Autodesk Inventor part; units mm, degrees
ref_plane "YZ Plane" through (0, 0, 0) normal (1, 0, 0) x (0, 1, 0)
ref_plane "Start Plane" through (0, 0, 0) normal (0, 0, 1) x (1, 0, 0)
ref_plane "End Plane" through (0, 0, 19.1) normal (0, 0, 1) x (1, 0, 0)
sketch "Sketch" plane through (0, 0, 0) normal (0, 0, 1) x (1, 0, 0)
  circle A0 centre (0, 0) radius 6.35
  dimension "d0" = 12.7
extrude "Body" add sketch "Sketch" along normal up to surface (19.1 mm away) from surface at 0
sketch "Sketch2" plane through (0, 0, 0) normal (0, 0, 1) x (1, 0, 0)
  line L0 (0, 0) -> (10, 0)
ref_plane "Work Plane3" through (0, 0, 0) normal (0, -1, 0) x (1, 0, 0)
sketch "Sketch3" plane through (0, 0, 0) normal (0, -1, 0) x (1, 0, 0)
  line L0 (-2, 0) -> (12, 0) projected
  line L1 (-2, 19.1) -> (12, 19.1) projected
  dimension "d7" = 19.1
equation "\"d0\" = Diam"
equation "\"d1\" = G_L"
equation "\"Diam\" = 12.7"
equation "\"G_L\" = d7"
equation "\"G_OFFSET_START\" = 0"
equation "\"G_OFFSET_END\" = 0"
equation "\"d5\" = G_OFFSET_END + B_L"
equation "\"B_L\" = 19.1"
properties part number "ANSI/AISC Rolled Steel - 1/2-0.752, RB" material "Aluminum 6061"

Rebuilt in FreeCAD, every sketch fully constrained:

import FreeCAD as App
import Part
import Sketcher
Q = App.Units.Quantity

doc = App.newDocument("Part")
body = doc.addObject("PartDesign::Body", "Body")

sketch1 = body.newObject("Sketcher::SketchObject", "Sketch")
sketch1.AttachmentSupport = (doc.getObject("XY_Plane"), [""])
sketch1.MapMode = "FlatFace"
sketch1.addGeometry(Part.Circle(App.Vector(0, 0, 0), App.Vector(0, 0, 1), 6), False)
sketch1.addConstraint(Sketcher.Constraint("Coincident", 0, 3, -1, 1))
sketch1.addConstraint(Sketcher.Constraint("Diameter", 0, Q("12.7 mm")))
pad1 = body.newObject("PartDesign::Pad", "Pad")
pad1.Profile = sketch1
pad1.Length = 19.1

doc.recompute()
